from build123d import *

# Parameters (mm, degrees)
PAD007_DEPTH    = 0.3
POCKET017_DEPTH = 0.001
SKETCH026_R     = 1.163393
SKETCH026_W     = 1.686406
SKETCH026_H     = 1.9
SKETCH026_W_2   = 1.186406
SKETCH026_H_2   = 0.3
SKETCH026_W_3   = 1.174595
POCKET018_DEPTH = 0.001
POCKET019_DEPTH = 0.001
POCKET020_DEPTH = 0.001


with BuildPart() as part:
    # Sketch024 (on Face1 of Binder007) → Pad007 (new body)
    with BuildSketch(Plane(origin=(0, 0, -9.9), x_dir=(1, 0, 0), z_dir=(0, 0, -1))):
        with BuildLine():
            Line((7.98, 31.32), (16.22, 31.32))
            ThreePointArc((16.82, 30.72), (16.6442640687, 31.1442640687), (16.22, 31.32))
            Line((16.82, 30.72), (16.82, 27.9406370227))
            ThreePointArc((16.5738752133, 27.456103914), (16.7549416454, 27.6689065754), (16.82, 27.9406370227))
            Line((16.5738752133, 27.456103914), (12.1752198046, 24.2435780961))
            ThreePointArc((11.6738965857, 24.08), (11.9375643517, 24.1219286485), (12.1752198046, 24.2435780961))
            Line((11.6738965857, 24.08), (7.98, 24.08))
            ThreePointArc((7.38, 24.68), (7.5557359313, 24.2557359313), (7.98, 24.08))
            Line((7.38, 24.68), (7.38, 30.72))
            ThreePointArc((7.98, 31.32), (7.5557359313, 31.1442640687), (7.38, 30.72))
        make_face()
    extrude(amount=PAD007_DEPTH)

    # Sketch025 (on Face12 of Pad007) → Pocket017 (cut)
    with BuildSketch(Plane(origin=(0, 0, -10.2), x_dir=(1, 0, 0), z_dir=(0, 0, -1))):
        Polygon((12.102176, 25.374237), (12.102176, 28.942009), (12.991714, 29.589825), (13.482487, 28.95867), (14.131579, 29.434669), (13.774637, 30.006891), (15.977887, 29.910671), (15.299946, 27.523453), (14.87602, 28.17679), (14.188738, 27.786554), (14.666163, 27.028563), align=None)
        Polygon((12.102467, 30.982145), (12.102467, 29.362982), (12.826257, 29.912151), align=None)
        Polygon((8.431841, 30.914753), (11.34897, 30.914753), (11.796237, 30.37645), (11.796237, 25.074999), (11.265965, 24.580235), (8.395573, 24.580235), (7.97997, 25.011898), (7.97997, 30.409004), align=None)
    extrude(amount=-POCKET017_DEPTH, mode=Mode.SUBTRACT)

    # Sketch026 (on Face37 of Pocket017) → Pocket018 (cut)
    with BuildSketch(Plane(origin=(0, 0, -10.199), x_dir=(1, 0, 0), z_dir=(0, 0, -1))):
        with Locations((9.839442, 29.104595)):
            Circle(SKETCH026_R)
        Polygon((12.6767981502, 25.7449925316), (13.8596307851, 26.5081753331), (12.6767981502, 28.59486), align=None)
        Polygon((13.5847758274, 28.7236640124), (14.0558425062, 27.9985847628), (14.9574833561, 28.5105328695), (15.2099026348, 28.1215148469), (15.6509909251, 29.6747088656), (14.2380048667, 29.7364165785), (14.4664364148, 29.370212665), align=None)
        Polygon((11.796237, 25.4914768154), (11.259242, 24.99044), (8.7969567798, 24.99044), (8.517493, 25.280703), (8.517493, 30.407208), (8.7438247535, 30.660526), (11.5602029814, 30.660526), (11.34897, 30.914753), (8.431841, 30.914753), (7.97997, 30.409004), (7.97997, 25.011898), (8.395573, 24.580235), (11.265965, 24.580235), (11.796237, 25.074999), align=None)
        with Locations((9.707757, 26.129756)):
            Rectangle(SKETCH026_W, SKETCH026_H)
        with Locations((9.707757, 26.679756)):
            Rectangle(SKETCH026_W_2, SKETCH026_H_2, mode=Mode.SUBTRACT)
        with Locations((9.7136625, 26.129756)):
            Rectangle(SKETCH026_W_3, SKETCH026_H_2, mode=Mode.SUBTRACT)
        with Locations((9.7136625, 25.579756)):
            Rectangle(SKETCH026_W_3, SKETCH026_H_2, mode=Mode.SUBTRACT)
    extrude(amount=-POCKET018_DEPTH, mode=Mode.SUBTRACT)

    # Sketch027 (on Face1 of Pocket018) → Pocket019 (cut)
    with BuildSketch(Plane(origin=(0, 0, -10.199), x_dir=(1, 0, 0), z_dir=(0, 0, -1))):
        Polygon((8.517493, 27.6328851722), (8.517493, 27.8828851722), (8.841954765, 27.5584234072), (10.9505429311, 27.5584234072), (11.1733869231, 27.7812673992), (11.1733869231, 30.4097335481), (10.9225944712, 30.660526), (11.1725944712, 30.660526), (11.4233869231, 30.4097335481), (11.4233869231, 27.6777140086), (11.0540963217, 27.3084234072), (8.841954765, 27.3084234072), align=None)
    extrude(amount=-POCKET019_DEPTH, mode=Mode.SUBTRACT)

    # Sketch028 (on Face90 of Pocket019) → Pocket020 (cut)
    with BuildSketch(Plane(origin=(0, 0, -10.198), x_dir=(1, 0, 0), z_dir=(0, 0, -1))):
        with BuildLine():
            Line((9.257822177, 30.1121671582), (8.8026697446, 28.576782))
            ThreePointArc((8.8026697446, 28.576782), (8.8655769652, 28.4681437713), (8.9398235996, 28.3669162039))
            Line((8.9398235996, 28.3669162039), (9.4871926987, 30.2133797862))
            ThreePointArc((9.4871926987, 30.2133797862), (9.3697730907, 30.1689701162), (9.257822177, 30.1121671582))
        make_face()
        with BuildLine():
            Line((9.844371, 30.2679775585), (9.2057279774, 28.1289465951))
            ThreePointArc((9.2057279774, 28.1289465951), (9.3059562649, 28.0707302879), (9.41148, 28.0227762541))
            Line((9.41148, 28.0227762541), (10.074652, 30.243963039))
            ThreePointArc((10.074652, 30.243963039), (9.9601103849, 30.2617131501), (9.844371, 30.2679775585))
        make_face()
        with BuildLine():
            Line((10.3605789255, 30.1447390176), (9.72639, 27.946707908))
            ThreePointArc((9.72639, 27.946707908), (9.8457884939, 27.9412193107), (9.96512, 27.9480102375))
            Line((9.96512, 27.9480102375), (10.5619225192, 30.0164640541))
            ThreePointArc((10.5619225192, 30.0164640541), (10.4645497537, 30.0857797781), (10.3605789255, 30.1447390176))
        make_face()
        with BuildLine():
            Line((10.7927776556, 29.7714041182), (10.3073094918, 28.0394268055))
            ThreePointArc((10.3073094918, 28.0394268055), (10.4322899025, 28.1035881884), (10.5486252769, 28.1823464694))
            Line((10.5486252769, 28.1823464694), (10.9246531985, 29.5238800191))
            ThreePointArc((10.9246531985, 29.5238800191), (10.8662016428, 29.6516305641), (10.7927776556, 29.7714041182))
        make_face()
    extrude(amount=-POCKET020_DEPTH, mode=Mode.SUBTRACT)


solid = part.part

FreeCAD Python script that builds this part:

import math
import FreeCAD as App
import Part
import Sketcher
from FreeCAD import Vector
Q = App.Units.Quantity


def add_polygon(sketch, points):
    """Adds a closed chain of lines whose ends are joined by coincident constraints."""
    first, n = sketch.GeometryCount, len(points)
    for a, b in zip(points, points[1:] + points[:1]):
        sketch.addGeometry(Part.LineSegment(App.Vector(*a, 0), App.Vector(*b, 0)), False)
    for i in range(n):
        sketch.addConstraint(Sketcher.Constraint("Coincident", first + i, 2, first + (i + 1) % n, 1))

doc = App.newDocument("Part")
body = doc.addObject("PartDesign::Body", "Body")

# Sketch on XY plane
sketch1 = body.newObject("Sketcher::SketchObject", "Sketch")
sketch1.AttachmentSupport = (doc.getObject("XY_Plane"), [""])
sketch1.MapMode = "FlatFace"
sketch1.AttachmentOffset = App.Placement(Vector(0, 0, -9.9), App.Rotation())
sketch1.addGeometry([
    Part.LineSegment(Vector(16.2, -31.3, 0), Vector(8, -31.3, 0)),  # 0
    Part.ArcOfCircle(Part.Circle(Vector(8, -30.7, 0), Vector(0, 0, 1), 0.6), math.radians(180), math.radians(270)),  # 1
    Part.LineSegment(Vector(7.4, -30.7, 0), Vector(7.4, -24.7, 0)),  # 2
    Part.ArcOfCircle(Part.Circle(Vector(8, -24.7, 0), Vector(0, 0, 1), 0.6), math.radians(90), math.radians(180)),  # 3
    Part.LineSegment(Vector(8, -24.1, 0), Vector(11.7, -24.1, 0)),  # 4
    Part.ArcOfCircle(Part.Circle(Vector(11.7, -24.9, 0), Vector(0, 0, 1), 0.8), math.radians(54), math.radians(90)),  # 5
    Part.LineSegment(Vector(12.2, -24.2, 0), Vector(16.6, -27.5, 0)),  # 6
    Part.ArcOfCircle(Part.Circle(Vector(16.2, -27.9, 0), Vector(0, 0, 1), 0.6), math.radians(0), math.radians(54)),  # 7
    Part.LineSegment(Vector(16.8, -27.9, 0), Vector(16.8, -30.7, 0)),  # 8
    Part.ArcOfCircle(Part.Circle(Vector(16.2, -30.7, 0), Vector(0, 0, 1), 0.6), math.radians(-90), math.radians(0)),  # 9
], False)
sketch1.addConstraint([
    Sketcher.Constraint("Tangent", 0, 2, 1, 2),
    Sketcher.Constraint("Tangent", 1, 1, 2, 1),
    Sketcher.Constraint("Tangent", 2, 2, 3, 2),
    Sketcher.Constraint("Tangent", 3, 1, 4, 1),
    Sketcher.Constraint("Tangent", 4, 2, 5, 2),
    Sketcher.Constraint("Tangent", 5, 1, 6, 1),
    Sketcher.Constraint("Tangent", 6, 2, 7, 2),
    Sketcher.Constraint("Tangent", 7, 1, 8, 1),
    Sketcher.Constraint("Tangent", 8, 2, 9, 2),
    Sketcher.Constraint("Tangent", 9, 1, 0, 1),
    Sketcher.Constraint("Horizontal", 0),
    Sketcher.Constraint("Vertical", 2),
    Sketcher.Constraint("Horizontal", 4),
    Sketcher.Constraint("Vertical", 8),
    Sketcher.Constraint("Equal", 1, 3),
    Sketcher.Constraint("Equal", 3, 7),
    Sketcher.Constraint("Equal", 7, 9),
    Sketcher.Constraint("Radius", 1, 0.6),
    Sketcher.Constraint("Radius", 5, 0.85),
    Sketcher.Constraint("DistanceX", 0, 2, 0, 1, 8.24),
    Sketcher.Constraint("DistanceY", 2, 1, 2, 2, 6.04),
    Sketcher.Constraint("DistanceX", -1, 1, 1, 3, 7.98),
    Sketcher.Constraint("DistanceY", 1, 3, -1, 1, 30.72),
    Sketcher.Constraint("Distance", 6, 5.446879),
    Sketcher.Constraint("DistanceX", 4, 1, 4, 2, 3.693897),
])
pad1 = body.newObject("PartDesign::Pad", "Pad")
pad1.Profile = sketch1
pad1.Length = 0.3
pad1.Reversed = True

# Sketch on XY plane
sketch2 = body.newObject("Sketcher::SketchObject", "Sketch001")
sketch2.AttachmentSupport = (doc.getObject("XY_Plane"), [""])
sketch2.MapMode = "FlatFace"
sketch2.AttachmentOffset = App.Placement(Vector(0, 0, -10.2), App.Rotation())
add_polygon(sketch2, [(12.1, -28.9), (12.1, -25.4), (14.7, -27), (14.2, -27.8), (14.9, -28.2), (15.3, -27.5), (16, -29.9), (13.8, -30), (14.1, -29.4), (13.5, -29), (13, -29.6)])  # lines 0-10
add_polygon(sketch2, [(12.1, -31), (12.1, -29.4), (12.8, -29.9)])  # lines 11-13
add_polygon(sketch2, [(11.3, -30.9), (8.4, -30.9), (8, -30.4), (8, -25), (8.4, -24.6), (11.3, -24.6), (11.8, -25.1), (11.8, -30.4)])  # lines 14-21
sketch2.addConstraint([
    Sketcher.Constraint("Vertical", 0),
    Sketcher.Constraint("Vertical", 11),
    Sketcher.Constraint("Horizontal", 14),
    Sketcher.Constraint("Vertical", 16),
    Sketcher.Constraint("Horizontal", 18),
    Sketcher.Constraint("Vertical", 20),
    Sketcher.Constraint("DistanceY", 19, 2, -1, 1, 25.074999),
    Sketcher.Constraint("DistanceY", 7, 2, 8, 2, 0.475999),
    Sketcher.Constraint("DistanceX", 14, 2, 14, 1, 2.917129),
    Sketcher.Constraint("DistanceX", 18, 1, 18, 2, 2.870392),
    Sketcher.Constraint("DistanceY", 0, 1, 0, 2, 3.567772),
    Sketcher.Constraint("DistanceY", 20, 2, 20, 1, 5.301451),
    Sketcher.Constraint("DistanceY", 2, 2, 4, 2, 0.263101),
    Sketcher.Constraint("DistanceY", 6, 2, 3, 2, 1.830101),
    Sketcher.Constraint("DistanceX", 6, 2, 2, 2, 0.414101),
    Sketcher.Constraint("DistanceY", 14, 2, 12, 2, 1.002602),
    Sketcher.Constraint("DistanceX", 19, 2, 2, 2, 2.392501),
    Sketcher.Constraint("DistanceY", 20, 2, 12, 2, 0.464299),
    Sketcher.Constraint("Distance", 4, 0.778821),
    Sketcher.Constraint("Distance", 6, 2.20535),
    Sketcher.Constraint("Distance", 8, 0.80492),
    Sketcher.Constraint("Distance", 9, 0.799509),
    Sketcher.Constraint("Distance", 10, 1.100429),
    Sketcher.Constraint("Distance", 15, 0.67821),
    Sketcher.Constraint("Distance", 21, 0.69987),
    Sketcher.Constraint("DistanceY", 11, 1, 11, 2, 1.619163),
    Sketcher.Constraint("DistanceY", 16, 1, 16, 2, 5.397106),
    Sketcher.Constraint("DistanceX", -1, 1, 2, 2, 14.188738),
    Sketcher.Constraint("DistanceX", -1, 1, 3, 2, 14.87602),
    Sketcher.Constraint("DistanceY", 3, 2, -1, 1, 28.17679),
    Sketcher.Constraint("DistanceY", 5, 2, -1, 1, 29.910671),
    Sketcher.Constraint("DistanceX", -1, 1, 7, 2, 14.131579),
    Sketcher.Constraint("DistanceY", 7, 2, -1, 1, 29.434669),
    Sketcher.Constraint("DistanceY", 10, 2, -1, 1, 28.942009),
    Sketcher.Constraint("DistanceY", 11, 2, -1, 1, 29.362982),
    Sketcher.Constraint("DistanceX", -1, 1, 15, 2, 7.97997),
    Sketcher.Constraint("DistanceY", 2, 2, 1, 2, 0.757991),
    Sketcher.Constraint("DistanceX", 0, 2, 4, 2, 3.19777),
    Sketcher.Constraint("DistanceX", 4, 2, 5, 2, 0.677941),
    Sketcher.Constraint("DistanceX", 10, 2, 11, 2, 0.000291),
    Sketcher.Constraint("DistanceX", 11, 2, 12, 2, 0.72379),
    Sketcher.Constraint("DistanceY", 15, 2, 17, 2, 5.828769),
    Sketcher.Constraint("DistanceX", 18, 2, 0, 2, 0.836211),
    Sketcher.Constraint("Distance", 1, 3.051364),
])
pocket1 = body.newObject("PartDesign::Pocket", "Pocket")
pocket1.Profile = sketch2
pocket1.Length = 0.001
pocket1.Reversed = True

# Sketch on XY plane
sketch3 = body.newObject("Sketcher::SketchObject", "Sketch002")
sketch3.AttachmentSupport = (doc.getObject("XY_Plane"), [""])
sketch3.MapMode = "FlatFace"
sketch3.AttachmentOffset = App.Placement(Vector(0, 0, -10.199), App.Rotation())
sketch3.addGeometry(Part.Circle(Vector(9.84, -29.1, 0), Vector(0, 0, 1), 1.16), False)  # 0
add_polygon(sketch3, [(12.68, -25.74), (13.86, -26.51), (12.68, -28.59)])  # lines 1-3
add_polygon(sketch3, [(13.58, -28.72), (14.06, -28), (14.96, -28.51), (15.21, -28.12), (15.65, -29.67), (14.24, -29.74), (14.47, -29.37)])  # lines 4-10
add_polygon(sketch3, [(11.8, -25.49), (11.26, -24.99), (8.8, -24.99), (8.52, -25.28), (8.52, -30.41), (8.74, -30.66), (11.56, -30.66), (11.35, -30.91), (8.43, -30.91), (7.98, -30.41), (7.98, -25.01), (8.4, -24.58), (11.27, -24.58), (11.8, -25.07)])  # lines 11-24
add_polygon(sketch3, [(8.86, -27.08), (8.86, -25.18), (10.55, -25.18), (10.55, -27.08)])  # lines 25-28
add_polygon(sketch3, [(10.3, -25.43), (9.13, -25.43), (9.13, -25.73), (10.3, -25.73)])  # lines 29-32
add_polygon(sketch3, [(10.3, -25.98), (9.13, -25.98), (9.13, -26.28), (10.3, -26.28)])  # lines 33-36
add_polygon(sketch3, [(10.3, -26.53), (9.11, -26.53), (9.11, -26.83), (10.3, -26.83)])  # lines 37-40
sketch3.addConstraint([
    Sketcher.Constraint("Vertical", 3),
    Sketcher.Constraint("Horizontal", 12),
    Sketcher.Constraint("Vertical", 14),
    Sketcher.Constraint("Horizontal", 16),
    Sketcher.Constraint("Horizontal", 18),
    Sketcher.Constraint("Vertical", 20),
    Sketcher.Constraint("Horizontal", 22),
    Sketcher.Constraint("Vertical", 24),
    Sketcher.Constraint("Vertical", 25),
    Sketcher.Constraint("Horizontal", 26),
    Sketcher.Constraint("Vertical", 27),
    Sketcher.Constraint("Horizontal", 28),
    Sketcher.Constraint("Horizontal", 29),
    Sketcher.Constraint("Vertical", 30),
    Sketcher.Constraint("Horizontal", 31),
    Sketcher.Constraint("Vertical", 32),
    Sketcher.Constraint("Horizontal", 33),
    Sketcher.Constraint("Vertical", 34),
    Sketcher.Constraint("Horizontal", 35),
    Sketcher.Constraint("Vertical", 36),
    Sketcher.Constraint("Horizontal", 37),
    Sketcher.Constraint("Vertical", 38),
    Sketcher.Constraint("Horizontal", 39),
    Sketcher.Constraint("Vertical", 40),
    Sketcher.Constraint("Parallel", 15, 19),
    Sketcher.Constraint("Parallel", 13, 21),
    Sketcher.Constraint("Parallel", 11, 23),
    Sketcher.Constraint("Vertical", 30, 2, 33, 2),
    Sketcher.Constraint("Vertical", 32, 2, 35, 2),
    Sketcher.Constraint("Vertical", 36, 2, 39, 2),
    Sketcher.Constraint("Equal", 32, 34),
    Sketcher.Constraint("Equal", 36, 38),
    Sketcher.Constraint("DistanceY", 25, 1, 25, 2, 1.9),
    Sketcher.Constraint("DistanceY", 30, 2, 30, 1, 0.3),
    Sketcher.Constraint("DistanceY", 33, 2, 25, 2, 0.8),
    Sketcher.Constraint("DistanceY", 37, 2, 30, 2, 0.8),
    Sketcher.Constraint("DistanceY", 29, 2, 25, 2, 0.25),
    Sketcher.Constraint("DistanceX", 31, 2, 26, 2, 0.25),
    Sketcher.Constraint("DistanceX", 28, 2, 37, 2, 0.25),
    Sketcher.Constraint("Diameter", 0, 2.326786),
    Sketcher.Constraint("DistanceY", 23, 2, -1, 1, 25.074999),
    Sketcher.Constraint("DistanceX", 19, 2, 17, 2, 3.369),
    Sketcher.Constraint("Distance", 15, 0.3397),
    Sketcher.Constraint("DistanceX", 16, 1, 16, 2, 2.816378),
    Sketcher.Constraint("DistanceX", 18, 2, 18, 1, 2.917129),
    Sketcher.Constraint("DistanceX", 22, 1, 22, 2, 2.870392),
    Sketcher.Constraint("DistanceX", -1, 1, 2, 2, 12.676798),
    Sketcher.Constraint("DistanceX", 0, 3, 4, 2, 4.216401),
    Sketcher.Constraint("DistanceY", 8, 2, 6, 2, 1.614902),
    Sketcher.Constraint("DistanceX", 11, 2, 4, 2, 2.796601),
    Sketcher.Constraint("DistanceX", 16, 2, 8, 2, 2.677802),
    Sketcher.Constraint("DistanceX", 18, 2, 0, 3, 1.407601),
    Sketcher.Constraint("DistanceY", 1, 2, 24, 2, 1.016699),
    Sketcher.Constraint("Distance", 7, 1.614612),
    Sketcher.Constraint("Distance", 9, 0.431609),
    Sketcher.Constraint("Distance", 10, 1.093321),
    Sketcher.Constraint("Distance", 11, 0.73444),
    Sketcher.Constraint("Distance", 13, 0.40293),
    Sketcher.Constraint("Distance", 17, 0.330531),
    Sketcher.Constraint("Distance", 19, 0.67821),
    Sketcher.Constraint("DistanceX", 12, 2, 12, 1, 2.462285),
    Sketcher.Constraint("DistanceX", 26, 1, 26, 2, 1.686406),
    Sketcher.Constraint("DistanceX", 29, 2, 29, 1, 1.174595),
    Sketcher.Constraint("DistanceY", 3, 1, 3, 2, 2.849867),
    Sketcher.Constraint("DistanceY", 14, 2, 14, 1, 5.126505),
    Sketcher.Constraint("DistanceY", 20, 1, 20, 2, 5.397106),
    Sketcher.Constraint("DistanceY", 24, 2, 24, 1, 0.416478),
    Sketcher.Constraint("DistanceX", -1, 1, 1, 2, 13.859631),
    Sketcher.Constraint("DistanceY", 2, 2, -1, 1, 28.59486),
    Sketcher.Constraint("DistanceX", -1, 1, 7, 2, 15.650991),
    Sketcher.Constraint("DistanceY", 7, 2, -1, 1, 29.674709),
    Sketcher.Constraint("DistanceY", 11, 2, -1, 1, 24.99044),
    Sketcher.Constraint("DistanceY", 14, 2, -1, 1, 30.407208),
    Sketcher.Constraint("DistanceX", -1, 1, 17, 2, 11.34897),
    Sketcher.Constraint("DistanceX", -1, 1, 26, 2, 10.55096),
    Sketcher.Constraint("DistanceY", 0, 3, 1, 2, 2.59642),
    Sketcher.Constraint("DistanceY", 4, 2, 1, 2, 1.490409),
    Sketcher.Constraint("DistanceX", 4, 2, 5, 2, 0.901641),
    Sketcher.Constraint("DistanceY", 5, 2, 4, 2, 0.511948),
    Sketcher.Constraint("DistanceX", 5, 2, 6, 2, 0.252419),
    Sketcher.Constraint("DistanceX", 8, 2, 9, 2, 0.228432),
    Sketcher.Constraint("DistanceY", 10, 2, 4, 2, 0.725079),
    Sketcher.Constraint("DistanceY", 25, 2, 21, 2, 0.599521),
])
pocket2 = body.newObject("PartDesign::Pocket", "Pocket001")
pocket2.Profile = sketch3
pocket2.Length = 0.001
pocket2.Reversed = True

# Sketch on XY plane
sketch4 = body.newObject("Sketcher::SketchObject", "Sketch003")
sketch4.AttachmentSupport = (doc.getObject("XY_Plane"), [""])
sketch4.MapMode = "FlatFace"
sketch4.AttachmentOffset = App.Placement(Vector(0, 0, -10.199), App.Rotation())
add_polygon(sketch4, [(8.52, -27.88), (8.52, -27.63), (8.84, -27.31), (11.05, -27.31), (11.42, -27.68), (11.42, -30.41), (11.17, -30.66), (10.92, -30.66), (11.17, -30.41), (11.17, -27.78), (10.95, -27.56), (8.84, -27.56)])  # lines 0-11
sketch4.addConstraint([
    Sketcher.Constraint("Vertical", 0),
    Sketcher.Constraint("Horizontal", 2),
    Sketcher.Constraint("Vertical", 4),
    Sketcher.Constraint("Horizontal", 6),
    Sketcher.Constraint("Vertical", 8),
    Sketcher.Constraint("Horizontal", 10),
    Sketcher.Constraint("Perpendicular", 1, 3),
    Sketcher.Constraint("Perpendicular", 3, 5),
    Sketcher.Constraint("Parallel", 5, 7),
    Sketcher.Constraint("Perpendicular", 7, 9),
    Sketcher.Constraint("Perpendicular", 9, 11),
    Sketcher.Constraint("Horizontal", 4, 2, 7, 2),
    Sketcher.Constraint("Vertical", 1, 2, 10, 2),
    Sketcher.Constraint("Equal", 6, 0),
    Sketcher.Constraint("Angle", 1, Q("45 deg")),
    Sketcher.Constraint("DistanceX", 6, 2, 6, 1, 0.25),
    Sketcher.Constraint("DistanceX", 2, 1, 2, 2, 2.212142),
    Sketcher.Constraint("DistanceX", 10, 2, 10, 1, 2.108588),
    Sketcher.Constraint("DistanceY", 4, 2, 4, 1, 2.73202),
    Sketcher.Constraint("DistanceX", 2, 2, 5, 2, 0.118498),
    Sketcher.Constraint("DistanceX", 0, 2, 5, 2, 2.655101),
    Sketcher.Constraint("Distance", 9, 0.315149),
    Sketcher.Constraint("DistanceX", -1, 1, 0, 2, 8.517493),
    Sketcher.Constraint("DistanceY", 0, 2, -1, 1, 27.632885),
])
pocket3 = body.newObject("PartDesign::Pocket", "Pocket002")
pocket3.Profile = sketch4
pocket3.Length = 0.001
pocket3.Reversed = True

# Sketch on XY plane
sketch5 = body.newObject("Sketcher::SketchObject", "Sketch004")
sketch5.AttachmentSupport = (doc.getObject("XY_Plane"), [""])
sketch5.MapMode = "FlatFace"
sketch5.AttachmentOffset = App.Placement(Vector(0, 0, -10.198), App.Rotation())
sketch5.addGeometry([
    Part.LineSegment(Vector(9.26, -30.11, 0), Vector(8.8, -28.58, 0)),  # 0
    Part.ArcOfCircle(Part.Circle(Vector(9.84, -29.1, 0), Vector(0, 0, 1), 1.16), math.radians(140.65), math.radians(153.02)),  # 1
    Part.LineSegment(Vector(8.94, -28.37, 0), Vector(9.49, -30.21, 0)),  # 2
    Part.ArcOfCircle(Part.Circle(Vector(9.84, -29.1, 0), Vector(0, 0, 1), 1.16), math.radians(-120), math.radians(-107.62)),  # 3
    Part.LineSegment(Vector(9.84, -30.27, 0), Vector(9.21, -28.13, 0)),  # 4
    Part.ArcOfCircle(Part.Circle(Vector(9.84, -29.1, 0), Vector(0, 0, 1), 1.16), math.radians(111.58), math.radians(123)),  # 5
    Part.LineSegment(Vector(9.41, -28.02, 0), Vector(10.07, -30.24, 0)),  # 6
    Part.ArcOfCircle(Part.Circle(Vector(9.84, -29.1, 0), Vector(0, 0, 1), 1.16), math.radians(-89.76), math.radians(-78.34)),  # 7
    Part.LineSegment(Vector(10.36, -30.14, 0), Vector(9.73, -27.95, 0)),  # 8
    Part.ArcOfCircle(Part.Circle(Vector(9.84, -29.1, 0), Vector(0, 0, 1), 1.16), math.radians(83.8), math.radians(95.58)),  # 9
    Part.LineSegment(Vector(9.97, -27.95, 0), Vector(10.56, -30.02, 0)),  # 10
    Part.ArcOfCircle(Part.Circle(Vector(9.84, -29.1, 0), Vector(0, 0, 1), 1.16), math.radians(-63.39), math.radians(-51.61)),  # 11
    Part.LineSegment(Vector(10.79, -29.77, 0), Vector(10.31, -28.04, 0)),  # 12
    Part.ArcOfCircle(Part.Circle(Vector(9.84, -29.1, 0), Vector(0, 0, 1), 1.16), math.radians(52.44), math.radians(66.29)),  # 13
    Part.LineSegment(Vector(10.55, -28.18, 0), Vector(10.92, -29.52, 0)),  # 14
    Part.ArcOfCircle(Part.Circle(Vector(9.84, -29.1, 0), Vector(0, 0, 1), 1.16), math.radians(-34.97), math.radians(-21.12)),  # 15
], False)
sketch5.addConstraint([
    Sketcher.Constraint("Coincident", 0, 2, 1, 2),
    Sketcher.Constraint("Coincident", 1, 1, 2, 1),
    Sketcher.Constraint("Coincident", 2, 2, 3, 2),
    Sketcher.Constraint("Coincident", 3, 1, 0, 1),
    Sketcher.Constraint("Coincident", 4, 2, 5, 2),
    Sketcher.Constraint("Coincident", 5, 1, 6, 1),
    Sketcher.Constraint("Coincident", 6, 2, 7, 2),
    Sketcher.Constraint("Coincident", 7, 1, 4, 1),
    Sketcher.Constraint("Coincident", 8, 2, 9, 2),
    Sketcher.Constraint("Coincident", 9, 1, 10, 1),
    Sketcher.Constraint("Coincident", 10, 2, 11, 2),
    Sketcher.Constraint("Coincident", 11, 1, 8, 1),
    Sketcher.Constraint("Coincident", 12, 2, 13, 2),
    Sketcher.Constraint("Coincident", 13, 1, 14, 1),
    Sketcher.Constraint("Coincident", 14, 2, 15, 2),
    Sketcher.Constraint("Coincident", 15, 1, 12, 1),
    Sketcher.Constraint("Coincident", 3, 3, 1, 3),
    Sketcher.Constraint("Coincident", 5, 3, 1, 3),
    Sketcher.Constraint("Coincident", 7, 3, 1, 3),
    Sketcher.Constraint("Coincident", 9, 3, 1, 3),
    Sketcher.Constraint("Coincident", 11, 3, 1, 3),
    Sketcher.Constraint("Coincident", 13, 3, 1, 3),
    Sketcher.Constraint("Coincident", 15, 3, 1, 3),
    Sketcher.Constraint("Equal", 1, 3),
    Sketcher.Constraint("Equal", 3, 5),
    Sketcher.Constraint("Equal", 5, 7),
    Sketcher.Constraint("Equal", 7, 9),
    Sketcher.Constraint("Equal", 9, 11),
    Sketcher.Constraint("Equal", 11, 13),
    Sketcher.Constraint("Equal", 13, 15),
    Sketcher.Constraint("Parallel", 0, 2),
    Sketcher.Constraint("Parallel", 4, 6),
    Sketcher.Constraint("Parallel", 8, 10),
    Sketcher.Constraint("Parallel", 12, 14),
    Sketcher.Constraint("DistanceX", 6, 2, 14, 2, 0.850001),
    Sketcher.Constraint("Radius", 1, 1.163393),
    Sketcher.Constraint("DistanceY", 6, 2, 10, 2, 0.227499),
    Sketcher.Constraint("DistanceX", 11, 1, 15, 1, 0.432199),
    Sketcher.Constraint("Distance", 10, 2.152829),
    Sketcher.Constraint("Distance", 12, 1.798729),
    Sketcher.Constraint("DistanceX", -1, 1, 5, 3, 9.839442),
    Sketcher.Constraint("DistanceX", -1, 1, 0, 2, 8.80267),
    Sketcher.Constraint("DistanceY", 2, 2, -1, 1, 30.21338),
    Sketcher.Constraint("DistanceX", -1, 1, 5, 1, 9.41148),
    Sketcher.Constraint("DistanceX", -1, 1, 7, 1, 9.844371),
    Sketcher.Constraint("DistanceX", -1, 1, 8, 2, 9.72639),
    Sketcher.Constraint("DistanceX", -1, 1, 9, 1, 9.96512),
    Sketcher.Constraint("DistanceY", 9, 1, -1, 1, 27.94801),
    Sketcher.Constraint("DistanceX", 1, 1, 5, 3, 0.899618),
])
pocket4 = body.newObject("PartDesign::Pocket", "Pocket003")
pocket4.Profile = sketch5
pocket4.Length = 0.001
pocket4.Reversed = True

doc.recompute()
